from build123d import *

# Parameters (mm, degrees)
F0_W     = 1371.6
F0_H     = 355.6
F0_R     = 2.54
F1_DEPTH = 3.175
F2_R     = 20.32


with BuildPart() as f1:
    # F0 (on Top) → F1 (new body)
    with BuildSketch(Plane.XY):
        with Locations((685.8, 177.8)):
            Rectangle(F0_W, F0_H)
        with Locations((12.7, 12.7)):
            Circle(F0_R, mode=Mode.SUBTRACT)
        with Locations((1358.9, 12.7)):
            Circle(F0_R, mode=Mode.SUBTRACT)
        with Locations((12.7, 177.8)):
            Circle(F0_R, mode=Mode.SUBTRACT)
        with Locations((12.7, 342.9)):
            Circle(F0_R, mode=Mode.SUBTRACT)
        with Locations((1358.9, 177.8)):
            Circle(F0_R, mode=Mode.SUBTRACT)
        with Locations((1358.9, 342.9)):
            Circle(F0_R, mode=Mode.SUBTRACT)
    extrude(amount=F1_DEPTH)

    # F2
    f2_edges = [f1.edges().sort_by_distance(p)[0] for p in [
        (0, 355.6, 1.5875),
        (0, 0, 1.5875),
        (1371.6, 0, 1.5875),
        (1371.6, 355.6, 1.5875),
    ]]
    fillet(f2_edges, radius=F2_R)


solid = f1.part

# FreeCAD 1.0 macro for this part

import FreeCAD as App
import Part
import Sketcher
Q = App.Units.Quantity


def edges_at(feature, points):
    """Names of the edges that pass closest to the given points."""
    edges = feature.Shape.Edges
    near = lambda p: min(range(len(edges)), key=lambda i: edges[i].distToShape(Part.Vertex(*p))[0])
    return sorted({f"Edge{near(p) + 1}" for p in points})

doc = App.newDocument("Part")
body = doc.addObject("PartDesign::Body", "Body")

# Sketch on XY plane
sketch1 = doc.addObject("Sketcher::SketchObject", "Sketch")
body.addObject(sketch1)
sketch1.AttachmentSupport = (doc.XY_Plane, [""])
sketch1.MapMode = "FlatFace"
sketch1.addGeometry([
    Part.LineSegment(App.Vector(0, 355.6, 0), App.Vector(0, 0, 0)),  # 0
    Part.LineSegment(App.Vector(0, 0, 0), App.Vector(1371.6, 0, 0)),  # 1
    Part.LineSegment(App.Vector(1371.6, 0, 0), App.Vector(1371.6, 355.6, 0)),  # 2
    Part.LineSegment(App.Vector(1371.6, 355.6, 0), App.Vector(0, 355.6, 0)),  # 3
    Part.Circle(App.Vector(12.7, 12.7, 0), App.Vector(0, 0, 1), 2.54),  # 4
    Part.Circle(App.Vector(1358.9, 12.7, 0), App.Vector(0, 0, 1), 2.54),  # 5
    Part.Circle(App.Vector(12.7, 177.8, 0), App.Vector(0, 0, 1), 2.54),  # 6
    Part.Circle(App.Vector(12.7, 342.9, 0), App.Vector(0, 0, 1), 2.54),  # 7
    Part.Circle(App.Vector(1358.9, 177.8, 0), App.Vector(0, 0, 1), 2.54),  # 8
    Part.Circle(App.Vector(1358.9, 342.9, 0), App.Vector(0, 0, 1), 2.54),  # 9
], False)
sketch1.addConstraint([
    Sketcher.Constraint("Coincident", 0, 2, 1, 1),
    Sketcher.Constraint("Coincident", 1, 2, 2, 1),
    Sketcher.Constraint("Coincident", 2, 2, 3, 1),
    Sketcher.Constraint("Coincident", 3, 2, 0, 1),
    Sketcher.Constraint("Vertical", 0),
    Sketcher.Constraint("Horizontal", 1),
    Sketcher.Constraint("Vertical", 2),
    Sketcher.Constraint("Horizontal", 3),
    Sketcher.Constraint("Coincident", 0, 2, -1, 1),
    Sketcher.Constraint("Equal", 4, 5),
    Sketcher.Constraint("Equal", 5, 6),
    Sketcher.Constraint("Equal", 6, 7),
    Sketcher.Constraint("Equal", 7, 8),
    Sketcher.Constraint("Equal", 8, 9),
    Sketcher.Constraint("Horizontal", 4, 3, 5, 3),
    Sketcher.Constraint("Horizontal", 6, 3, 8, 3),
    Sketcher.Constraint("Horizontal", 7, 3, 9, 3),
    Sketcher.Constraint("Vertical", 4, 3, 6, 3),
    Sketcher.Constraint("Vertical", 6, 3, 7, 3),
    Sketcher.Constraint("Vertical", 5, 3, 8, 3),
    Sketcher.Constraint("Vertical", 8, 3, 9, 3),
    Sketcher.Constraint("Diameter", 4, Q("0.2 in")),
    Sketcher.Constraint("DistanceX", 1, 1, 1, 2, Q("54 in")),
    Sketcher.Constraint("DistanceY", 0, 2, 0, 1, Q("14 in")),
    Sketcher.Constraint("DistanceY", -1, 1, 6, 3, Q("7 in")),
    Sketcher.Constraint("DistanceX", 4, 3, 5, 3, Q("53 in")),
    Sketcher.Constraint("DistanceY", 4, 3, 7, 3, Q("13 in")),
    Sketcher.Constraint("DistanceX", -1, 1, 4, 3, Q("0.5 in")),
    Sketcher.Constraint("DistanceY", -1, 1, 4, 3, Q("0.5 in")),
])
pad1 = doc.addObject("PartDesign::Pad", "Pad")
body.addObject(pad1)
pad1.Profile = sketch1
pad1.Length = Q("0.125 in")
doc.recompute()

fillet = doc.addObject("PartDesign::Fillet", "Fillet")
body.addObject(fillet)
fillet.Base = (pad1, edges_at(pad1, [
    (0, 355.6, 1.587),
    (0, 0, 1.587),
    (1371.6, 0, 1.587),
    (1371.6, 355.6, 1.587),
]))
fillet.Radius = Q("0.8 in")

doc.recompute()
